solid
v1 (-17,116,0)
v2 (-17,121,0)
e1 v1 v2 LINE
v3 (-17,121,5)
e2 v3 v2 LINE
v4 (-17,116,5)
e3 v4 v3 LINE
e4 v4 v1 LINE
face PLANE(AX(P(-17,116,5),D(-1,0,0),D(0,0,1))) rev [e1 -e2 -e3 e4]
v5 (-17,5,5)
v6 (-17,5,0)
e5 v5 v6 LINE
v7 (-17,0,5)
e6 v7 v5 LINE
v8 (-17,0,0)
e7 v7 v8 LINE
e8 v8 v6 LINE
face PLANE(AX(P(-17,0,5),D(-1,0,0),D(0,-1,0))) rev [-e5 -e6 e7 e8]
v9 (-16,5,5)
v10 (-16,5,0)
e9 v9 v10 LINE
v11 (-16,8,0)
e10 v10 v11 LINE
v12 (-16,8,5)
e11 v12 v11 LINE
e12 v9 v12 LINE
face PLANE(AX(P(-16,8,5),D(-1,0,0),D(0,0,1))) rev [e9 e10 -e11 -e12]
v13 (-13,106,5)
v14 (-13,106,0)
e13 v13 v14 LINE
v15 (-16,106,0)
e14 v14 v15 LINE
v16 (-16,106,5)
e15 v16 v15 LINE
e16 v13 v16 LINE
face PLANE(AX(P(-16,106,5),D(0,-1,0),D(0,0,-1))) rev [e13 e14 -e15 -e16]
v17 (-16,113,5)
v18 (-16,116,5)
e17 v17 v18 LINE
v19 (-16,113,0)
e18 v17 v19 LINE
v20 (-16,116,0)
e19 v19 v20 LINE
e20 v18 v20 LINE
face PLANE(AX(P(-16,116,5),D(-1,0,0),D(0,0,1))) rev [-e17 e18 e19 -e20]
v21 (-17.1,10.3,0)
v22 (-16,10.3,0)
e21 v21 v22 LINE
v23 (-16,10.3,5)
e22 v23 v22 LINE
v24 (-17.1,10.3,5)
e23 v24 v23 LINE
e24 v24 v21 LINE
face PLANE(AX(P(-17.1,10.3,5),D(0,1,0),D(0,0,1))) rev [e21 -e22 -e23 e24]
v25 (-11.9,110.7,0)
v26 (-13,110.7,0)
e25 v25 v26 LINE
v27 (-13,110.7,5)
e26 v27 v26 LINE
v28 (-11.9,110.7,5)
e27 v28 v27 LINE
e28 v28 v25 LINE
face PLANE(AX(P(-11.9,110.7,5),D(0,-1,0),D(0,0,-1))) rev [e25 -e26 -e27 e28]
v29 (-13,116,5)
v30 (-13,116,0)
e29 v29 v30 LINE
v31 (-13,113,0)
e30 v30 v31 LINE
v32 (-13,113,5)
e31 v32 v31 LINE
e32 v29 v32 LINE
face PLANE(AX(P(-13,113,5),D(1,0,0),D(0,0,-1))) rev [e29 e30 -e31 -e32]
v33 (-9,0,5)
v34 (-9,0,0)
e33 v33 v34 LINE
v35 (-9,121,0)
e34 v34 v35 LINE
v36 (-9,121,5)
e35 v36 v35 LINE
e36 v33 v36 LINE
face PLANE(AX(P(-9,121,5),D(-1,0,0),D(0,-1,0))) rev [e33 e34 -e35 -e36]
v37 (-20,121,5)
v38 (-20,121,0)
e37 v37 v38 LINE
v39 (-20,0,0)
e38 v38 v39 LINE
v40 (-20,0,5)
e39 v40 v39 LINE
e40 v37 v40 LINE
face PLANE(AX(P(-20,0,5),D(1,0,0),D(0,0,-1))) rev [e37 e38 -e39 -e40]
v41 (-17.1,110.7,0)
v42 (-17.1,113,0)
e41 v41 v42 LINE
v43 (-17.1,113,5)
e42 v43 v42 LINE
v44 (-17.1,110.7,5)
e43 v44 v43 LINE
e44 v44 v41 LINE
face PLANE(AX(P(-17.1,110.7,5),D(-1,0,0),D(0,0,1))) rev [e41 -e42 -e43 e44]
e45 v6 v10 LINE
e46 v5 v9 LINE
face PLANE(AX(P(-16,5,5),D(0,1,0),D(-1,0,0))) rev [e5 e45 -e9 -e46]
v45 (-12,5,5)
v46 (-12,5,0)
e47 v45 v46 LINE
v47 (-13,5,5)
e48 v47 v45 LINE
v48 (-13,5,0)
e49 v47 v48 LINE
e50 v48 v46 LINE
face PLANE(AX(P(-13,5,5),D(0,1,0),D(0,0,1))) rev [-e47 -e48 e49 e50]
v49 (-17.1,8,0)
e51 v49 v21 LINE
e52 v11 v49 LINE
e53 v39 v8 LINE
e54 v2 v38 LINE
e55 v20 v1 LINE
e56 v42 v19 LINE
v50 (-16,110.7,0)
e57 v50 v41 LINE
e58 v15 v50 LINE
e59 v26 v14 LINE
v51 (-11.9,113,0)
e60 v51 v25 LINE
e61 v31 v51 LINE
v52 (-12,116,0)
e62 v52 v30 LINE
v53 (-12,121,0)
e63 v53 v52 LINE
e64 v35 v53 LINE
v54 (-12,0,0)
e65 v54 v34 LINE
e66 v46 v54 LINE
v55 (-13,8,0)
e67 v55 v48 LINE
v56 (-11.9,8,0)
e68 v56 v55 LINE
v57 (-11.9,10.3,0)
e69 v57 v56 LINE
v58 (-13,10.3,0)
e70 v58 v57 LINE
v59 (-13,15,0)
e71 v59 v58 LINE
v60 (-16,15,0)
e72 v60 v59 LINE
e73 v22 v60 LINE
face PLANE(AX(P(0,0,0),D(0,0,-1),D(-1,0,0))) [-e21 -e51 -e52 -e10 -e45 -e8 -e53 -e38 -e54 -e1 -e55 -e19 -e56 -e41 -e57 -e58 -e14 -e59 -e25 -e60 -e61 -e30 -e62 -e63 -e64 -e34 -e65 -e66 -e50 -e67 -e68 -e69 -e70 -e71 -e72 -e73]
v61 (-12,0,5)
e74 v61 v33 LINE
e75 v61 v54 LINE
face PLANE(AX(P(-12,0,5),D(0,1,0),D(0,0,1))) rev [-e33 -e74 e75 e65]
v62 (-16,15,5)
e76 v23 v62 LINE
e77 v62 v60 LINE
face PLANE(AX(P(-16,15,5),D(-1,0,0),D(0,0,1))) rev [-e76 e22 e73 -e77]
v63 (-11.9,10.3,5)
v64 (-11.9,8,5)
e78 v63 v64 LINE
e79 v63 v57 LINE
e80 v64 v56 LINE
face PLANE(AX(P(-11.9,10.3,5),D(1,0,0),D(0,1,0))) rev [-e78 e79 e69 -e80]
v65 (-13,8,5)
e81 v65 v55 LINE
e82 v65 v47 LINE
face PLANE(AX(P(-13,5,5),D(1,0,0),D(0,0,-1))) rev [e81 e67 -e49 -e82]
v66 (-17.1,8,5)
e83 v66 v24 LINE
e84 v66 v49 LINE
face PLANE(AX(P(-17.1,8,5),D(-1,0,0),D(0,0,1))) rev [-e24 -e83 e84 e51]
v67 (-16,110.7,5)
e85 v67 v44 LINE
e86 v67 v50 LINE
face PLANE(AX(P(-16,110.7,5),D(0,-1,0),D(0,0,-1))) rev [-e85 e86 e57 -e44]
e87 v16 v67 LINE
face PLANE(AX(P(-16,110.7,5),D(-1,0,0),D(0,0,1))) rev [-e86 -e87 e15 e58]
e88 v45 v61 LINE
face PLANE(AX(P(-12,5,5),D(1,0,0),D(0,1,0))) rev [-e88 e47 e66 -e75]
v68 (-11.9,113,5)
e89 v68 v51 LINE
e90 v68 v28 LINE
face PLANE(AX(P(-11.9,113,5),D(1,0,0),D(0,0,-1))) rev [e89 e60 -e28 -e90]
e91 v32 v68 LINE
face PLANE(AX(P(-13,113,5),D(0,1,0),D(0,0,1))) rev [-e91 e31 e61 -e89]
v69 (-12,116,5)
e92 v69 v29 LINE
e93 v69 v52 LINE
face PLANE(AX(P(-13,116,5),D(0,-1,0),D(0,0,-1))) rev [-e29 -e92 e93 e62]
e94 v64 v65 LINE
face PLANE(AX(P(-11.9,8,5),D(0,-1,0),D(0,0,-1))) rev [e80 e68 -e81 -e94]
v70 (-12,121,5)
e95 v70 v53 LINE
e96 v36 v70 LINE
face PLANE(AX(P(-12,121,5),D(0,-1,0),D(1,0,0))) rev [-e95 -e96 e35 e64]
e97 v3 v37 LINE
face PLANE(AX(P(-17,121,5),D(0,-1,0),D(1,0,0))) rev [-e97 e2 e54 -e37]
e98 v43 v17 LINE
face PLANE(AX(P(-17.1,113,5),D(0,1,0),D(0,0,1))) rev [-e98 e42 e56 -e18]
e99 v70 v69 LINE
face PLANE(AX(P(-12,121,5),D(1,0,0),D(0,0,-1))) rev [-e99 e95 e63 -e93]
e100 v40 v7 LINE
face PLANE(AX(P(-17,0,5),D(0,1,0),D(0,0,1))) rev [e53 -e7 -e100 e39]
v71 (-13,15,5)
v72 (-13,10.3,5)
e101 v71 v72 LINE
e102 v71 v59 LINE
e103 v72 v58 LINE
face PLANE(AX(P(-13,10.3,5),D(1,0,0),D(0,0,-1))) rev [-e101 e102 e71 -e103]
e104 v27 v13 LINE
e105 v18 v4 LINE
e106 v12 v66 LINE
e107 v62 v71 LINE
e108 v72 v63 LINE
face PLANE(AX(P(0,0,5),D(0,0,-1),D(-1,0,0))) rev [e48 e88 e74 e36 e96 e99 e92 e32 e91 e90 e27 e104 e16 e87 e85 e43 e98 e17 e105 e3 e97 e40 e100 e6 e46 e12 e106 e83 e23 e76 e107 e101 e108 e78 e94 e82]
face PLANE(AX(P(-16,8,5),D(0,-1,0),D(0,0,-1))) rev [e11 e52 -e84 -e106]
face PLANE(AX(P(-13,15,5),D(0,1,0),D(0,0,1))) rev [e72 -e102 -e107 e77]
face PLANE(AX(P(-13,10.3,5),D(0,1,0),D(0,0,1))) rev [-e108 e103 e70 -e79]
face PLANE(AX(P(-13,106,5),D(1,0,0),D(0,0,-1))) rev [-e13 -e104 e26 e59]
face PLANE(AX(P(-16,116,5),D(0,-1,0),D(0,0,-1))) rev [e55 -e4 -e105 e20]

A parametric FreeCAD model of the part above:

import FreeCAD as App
import Part
import Sketcher
from FreeCAD import Vector
Q = App.Units.Quantity


def add_polygon(sketch, points):
    """Adds a closed chain of lines whose ends are joined by coincident constraints."""
    first, n = sketch.GeometryCount, len(points)
    for a, b in zip(points, points[1:] + points[:1]):
        sketch.addGeometry(Part.LineSegment(App.Vector(*a, 0), App.Vector(*b, 0)), False)
    for i in range(n):
        sketch.addConstraint(Sketcher.Constraint("Coincident", first + i, 2, first + (i + 1) % n, 1))

doc = App.newDocument("Part")
body = doc.addObject("PartDesign::Body", "Body")

sketch1 = body.newObject("Sketcher::SketchObject", "Sketch")
sketch1.AttachmentSupport = (doc.getObject("XY_Plane"), [""])
sketch1.MapMode = "FlatFace"
add_polygon(sketch1, [(-9, 0), (-9, 121), (-12, 121), (-12, 116), (-13, 116), (-13, 113), (-11.9, 113), (-11.9, 110.7), (-13, 110.7), (-13, 106), (-16, 106), (-16, 110.7), (-17.1, 110.7), (-17.1, 113), (-16, 113), (-16, 116), (-17, 116), (-17, 121), (-20, 121), (-20, 0), (-17, 0), (-17, 5), (-16, 5), (-16, 8), (-17.1, 8), (-17.1, 10.3), (-16, 10.3), (-16, 15), (-13, 15), (-13, 10.3), (-11.9, 10.3), (-11.9, 8), (-13, 8), (-13, 5), (-12, 5), (-12, 0)])
sketch1.addConstraint(Sketcher.Constraint("Vertical", 0))
sketch1.addConstraint(Sketcher.Constraint("Horizontal", 1))
sketch1.addConstraint(Sketcher.Constraint("Vertical", 2))
sketch1.addConstraint(Sketcher.Constraint("Horizontal", 3))
sketch1.addConstraint(Sketcher.Constraint("Vertical", 4))
sketch1.addConstraint(Sketcher.Constraint("Horizontal", 5))
sketch1.addConstraint(Sketcher.Constraint("Vertical", 6))
sketch1.addConstraint(Sketcher.Constraint("Horizontal", 7))
sketch1.addConstraint(Sketcher.Constraint("Vertical", 8))
sketch1.addConstraint(Sketcher.Constraint("Horizontal", 9))
sketch1.addConstraint(Sketcher.Constraint("Vertical", 10))
sketch1.addConstraint(Sketcher.Constraint("Horizontal", 11))
sketch1.addConstraint(Sketcher.Constraint("Vertical", 12))
sketch1.addConstraint(Sketcher.Constraint("Horizontal", 13))
sketch1.addConstraint(Sketcher.Constraint("Vertical", 14))
sketch1.addConstraint(Sketcher.Constraint("Horizontal", 15))
sketch1.addConstraint(Sketcher.Constraint("Vertical", 16))
sketch1.addConstraint(Sketcher.Constraint("Horizontal", 17))
sketch1.addConstraint(Sketcher.Constraint("Vertical", 18))
sketch1.addConstraint(Sketcher.Constraint("Horizontal", 19))
sketch1.addConstraint(Sketcher.Constraint("Vertical", 20))
sketch1.addConstraint(Sketcher.Constraint("Horizontal", 21))
sketch1.addConstraint(Sketcher.Constraint("Vertical", 22))
sketch1.addConstraint(Sketcher.Constraint("Horizontal", 23))
sketch1.addConstraint(Sketcher.Constraint("Vertical", 24))
sketch1.addConstraint(Sketcher.Constraint("Horizontal", 25))
sketch1.addConstraint(Sketcher.Constraint("Vertical", 26))
sketch1.addConstraint(Sketcher.Constraint("Horizontal", 27))
sketch1.addConstraint(Sketcher.Constraint("Vertical", 28))
sketch1.addConstraint(Sketcher.Constraint("Horizontal", 29))
sketch1.addConstraint(Sketcher.Constraint("Vertical", 30))
sketch1.addConstraint(Sketcher.Constraint("Horizontal", 31))
sketch1.addConstraint(Sketcher.Constraint("Vertical", 32))
sketch1.addConstraint(Sketcher.Constraint("Horizontal", 33))
sketch1.addConstraint(Sketcher.Constraint("Vertical", 34))
sketch1.addConstraint(Sketcher.Constraint("Horizontal", 35))
sketch1.addConstraint(Sketcher.Constraint("PointOnObject", 18, 2, -1))
sketch1.addConstraint(Sketcher.Constraint("PointOnObject", 34, 2, -1))
sketch1.addConstraint(Sketcher.Constraint("Horizontal", 7, 2, 10, 2))
sketch1.addConstraint(Sketcher.Constraint("Horizontal", 5, 2, 12, 2))
sketch1.addConstraint(Sketcher.Constraint("Horizontal", 3, 2, 14, 2))
sketch1.addConstraint(Sketcher.Constraint("Horizontal", 1, 2, 16, 2))
sketch1.addConstraint(Sketcher.Constraint("Horizontal", 25, 2, 28, 2))
sketch1.addConstraint(Sketcher.Constraint("Horizontal", 23, 2, 30, 2))
sketch1.addConstraint(Sketcher.Constraint("Horizontal", 21, 2, 32, 2))
sketch1.addConstraint(Sketcher.Constraint("Vertical", 4, 2, 7, 2))
sketch1.addConstraint(Sketcher.Constraint("Vertical", 10, 2, 13, 2))
sketch1.addConstraint(Sketcher.Constraint("Vertical", 16, 2, 19, 2))
sketch1.addConstraint(Sketcher.Constraint("Vertical", 14, 2, 21, 2))
sketch1.addConstraint(Sketcher.Constraint("Vertical", 12, 2, 23, 2))
sketch1.addConstraint(Sketcher.Constraint("Vertical", 22, 2, 25, 2))
sketch1.addConstraint(Sketcher.Constraint("Vertical", 8, 2, 27, 2))
sketch1.addConstraint(Sketcher.Constraint("Vertical", 6, 2, 29, 2))
sketch1.addConstraint(Sketcher.Constraint("Vertical", 28, 2, 31, 2))
sketch1.addConstraint(Sketcher.Constraint("Vertical", 2, 2, 33, 2))
sketch1.addConstraint(Sketcher.Constraint("Equal", 1, 9))
sketch1.addConstraint(Sketcher.Constraint("Equal", 7, 11))
sketch1.addConstraint(Sketcher.Constraint("Equal", 3, 15))
sketch1.addConstraint(Sketcher.Constraint("Equal", 9, 17))
sketch1.addConstraint(Sketcher.Constraint("Equal", 35, 4))
sketch1.addConstraint(Sketcher.Constraint("Equal", 16, 20))
sketch1.addConstraint(Sketcher.Constraint("Equal", 14, 22))
sketch1.addConstraint(Sketcher.Constraint("Equal", 12, 24))
sketch1.addConstraint(Sketcher.Constraint("Equal", 10, 26))
sketch1.addConstraint(Sketcher.Constraint("DistanceX", 1, 2, 1, 1, Q("3 mm")))
sketch1.addConstraint(Sketcher.Constraint("DistanceX", 3, 2, 3, 1, Q("1 mm")))
sketch1.addConstraint(Sketcher.Constraint("DistanceY", 0, 1, 0, 2, Q("121 mm")))
sketch1.addConstraint(Sketcher.Constraint("DistanceY", 2, 2, 2, 1, Q("5 mm")))
sketch1.addConstraint(Sketcher.Constraint("DistanceX", 5, 1, 5, 2, Q("1.1 mm")))
sketch1.addConstraint(Sketcher.Constraint("DistanceY", 6, 2, 6, 1, Q("2.3 mm")))
sketch1.addConstraint(Sketcher.Constraint("DistanceY", 8, 2, 8, 1, Q("4.7 mm")))
sketch1.addConstraint(Sketcher.Constraint("DistanceX", 0, 2, -1, 1, Q("9 mm")))
pad1 = body.newObject("PartDesign::Pad", "Pad")
pad1.Profile = sketch1
pad1.Length = 5

doc.recompute()
